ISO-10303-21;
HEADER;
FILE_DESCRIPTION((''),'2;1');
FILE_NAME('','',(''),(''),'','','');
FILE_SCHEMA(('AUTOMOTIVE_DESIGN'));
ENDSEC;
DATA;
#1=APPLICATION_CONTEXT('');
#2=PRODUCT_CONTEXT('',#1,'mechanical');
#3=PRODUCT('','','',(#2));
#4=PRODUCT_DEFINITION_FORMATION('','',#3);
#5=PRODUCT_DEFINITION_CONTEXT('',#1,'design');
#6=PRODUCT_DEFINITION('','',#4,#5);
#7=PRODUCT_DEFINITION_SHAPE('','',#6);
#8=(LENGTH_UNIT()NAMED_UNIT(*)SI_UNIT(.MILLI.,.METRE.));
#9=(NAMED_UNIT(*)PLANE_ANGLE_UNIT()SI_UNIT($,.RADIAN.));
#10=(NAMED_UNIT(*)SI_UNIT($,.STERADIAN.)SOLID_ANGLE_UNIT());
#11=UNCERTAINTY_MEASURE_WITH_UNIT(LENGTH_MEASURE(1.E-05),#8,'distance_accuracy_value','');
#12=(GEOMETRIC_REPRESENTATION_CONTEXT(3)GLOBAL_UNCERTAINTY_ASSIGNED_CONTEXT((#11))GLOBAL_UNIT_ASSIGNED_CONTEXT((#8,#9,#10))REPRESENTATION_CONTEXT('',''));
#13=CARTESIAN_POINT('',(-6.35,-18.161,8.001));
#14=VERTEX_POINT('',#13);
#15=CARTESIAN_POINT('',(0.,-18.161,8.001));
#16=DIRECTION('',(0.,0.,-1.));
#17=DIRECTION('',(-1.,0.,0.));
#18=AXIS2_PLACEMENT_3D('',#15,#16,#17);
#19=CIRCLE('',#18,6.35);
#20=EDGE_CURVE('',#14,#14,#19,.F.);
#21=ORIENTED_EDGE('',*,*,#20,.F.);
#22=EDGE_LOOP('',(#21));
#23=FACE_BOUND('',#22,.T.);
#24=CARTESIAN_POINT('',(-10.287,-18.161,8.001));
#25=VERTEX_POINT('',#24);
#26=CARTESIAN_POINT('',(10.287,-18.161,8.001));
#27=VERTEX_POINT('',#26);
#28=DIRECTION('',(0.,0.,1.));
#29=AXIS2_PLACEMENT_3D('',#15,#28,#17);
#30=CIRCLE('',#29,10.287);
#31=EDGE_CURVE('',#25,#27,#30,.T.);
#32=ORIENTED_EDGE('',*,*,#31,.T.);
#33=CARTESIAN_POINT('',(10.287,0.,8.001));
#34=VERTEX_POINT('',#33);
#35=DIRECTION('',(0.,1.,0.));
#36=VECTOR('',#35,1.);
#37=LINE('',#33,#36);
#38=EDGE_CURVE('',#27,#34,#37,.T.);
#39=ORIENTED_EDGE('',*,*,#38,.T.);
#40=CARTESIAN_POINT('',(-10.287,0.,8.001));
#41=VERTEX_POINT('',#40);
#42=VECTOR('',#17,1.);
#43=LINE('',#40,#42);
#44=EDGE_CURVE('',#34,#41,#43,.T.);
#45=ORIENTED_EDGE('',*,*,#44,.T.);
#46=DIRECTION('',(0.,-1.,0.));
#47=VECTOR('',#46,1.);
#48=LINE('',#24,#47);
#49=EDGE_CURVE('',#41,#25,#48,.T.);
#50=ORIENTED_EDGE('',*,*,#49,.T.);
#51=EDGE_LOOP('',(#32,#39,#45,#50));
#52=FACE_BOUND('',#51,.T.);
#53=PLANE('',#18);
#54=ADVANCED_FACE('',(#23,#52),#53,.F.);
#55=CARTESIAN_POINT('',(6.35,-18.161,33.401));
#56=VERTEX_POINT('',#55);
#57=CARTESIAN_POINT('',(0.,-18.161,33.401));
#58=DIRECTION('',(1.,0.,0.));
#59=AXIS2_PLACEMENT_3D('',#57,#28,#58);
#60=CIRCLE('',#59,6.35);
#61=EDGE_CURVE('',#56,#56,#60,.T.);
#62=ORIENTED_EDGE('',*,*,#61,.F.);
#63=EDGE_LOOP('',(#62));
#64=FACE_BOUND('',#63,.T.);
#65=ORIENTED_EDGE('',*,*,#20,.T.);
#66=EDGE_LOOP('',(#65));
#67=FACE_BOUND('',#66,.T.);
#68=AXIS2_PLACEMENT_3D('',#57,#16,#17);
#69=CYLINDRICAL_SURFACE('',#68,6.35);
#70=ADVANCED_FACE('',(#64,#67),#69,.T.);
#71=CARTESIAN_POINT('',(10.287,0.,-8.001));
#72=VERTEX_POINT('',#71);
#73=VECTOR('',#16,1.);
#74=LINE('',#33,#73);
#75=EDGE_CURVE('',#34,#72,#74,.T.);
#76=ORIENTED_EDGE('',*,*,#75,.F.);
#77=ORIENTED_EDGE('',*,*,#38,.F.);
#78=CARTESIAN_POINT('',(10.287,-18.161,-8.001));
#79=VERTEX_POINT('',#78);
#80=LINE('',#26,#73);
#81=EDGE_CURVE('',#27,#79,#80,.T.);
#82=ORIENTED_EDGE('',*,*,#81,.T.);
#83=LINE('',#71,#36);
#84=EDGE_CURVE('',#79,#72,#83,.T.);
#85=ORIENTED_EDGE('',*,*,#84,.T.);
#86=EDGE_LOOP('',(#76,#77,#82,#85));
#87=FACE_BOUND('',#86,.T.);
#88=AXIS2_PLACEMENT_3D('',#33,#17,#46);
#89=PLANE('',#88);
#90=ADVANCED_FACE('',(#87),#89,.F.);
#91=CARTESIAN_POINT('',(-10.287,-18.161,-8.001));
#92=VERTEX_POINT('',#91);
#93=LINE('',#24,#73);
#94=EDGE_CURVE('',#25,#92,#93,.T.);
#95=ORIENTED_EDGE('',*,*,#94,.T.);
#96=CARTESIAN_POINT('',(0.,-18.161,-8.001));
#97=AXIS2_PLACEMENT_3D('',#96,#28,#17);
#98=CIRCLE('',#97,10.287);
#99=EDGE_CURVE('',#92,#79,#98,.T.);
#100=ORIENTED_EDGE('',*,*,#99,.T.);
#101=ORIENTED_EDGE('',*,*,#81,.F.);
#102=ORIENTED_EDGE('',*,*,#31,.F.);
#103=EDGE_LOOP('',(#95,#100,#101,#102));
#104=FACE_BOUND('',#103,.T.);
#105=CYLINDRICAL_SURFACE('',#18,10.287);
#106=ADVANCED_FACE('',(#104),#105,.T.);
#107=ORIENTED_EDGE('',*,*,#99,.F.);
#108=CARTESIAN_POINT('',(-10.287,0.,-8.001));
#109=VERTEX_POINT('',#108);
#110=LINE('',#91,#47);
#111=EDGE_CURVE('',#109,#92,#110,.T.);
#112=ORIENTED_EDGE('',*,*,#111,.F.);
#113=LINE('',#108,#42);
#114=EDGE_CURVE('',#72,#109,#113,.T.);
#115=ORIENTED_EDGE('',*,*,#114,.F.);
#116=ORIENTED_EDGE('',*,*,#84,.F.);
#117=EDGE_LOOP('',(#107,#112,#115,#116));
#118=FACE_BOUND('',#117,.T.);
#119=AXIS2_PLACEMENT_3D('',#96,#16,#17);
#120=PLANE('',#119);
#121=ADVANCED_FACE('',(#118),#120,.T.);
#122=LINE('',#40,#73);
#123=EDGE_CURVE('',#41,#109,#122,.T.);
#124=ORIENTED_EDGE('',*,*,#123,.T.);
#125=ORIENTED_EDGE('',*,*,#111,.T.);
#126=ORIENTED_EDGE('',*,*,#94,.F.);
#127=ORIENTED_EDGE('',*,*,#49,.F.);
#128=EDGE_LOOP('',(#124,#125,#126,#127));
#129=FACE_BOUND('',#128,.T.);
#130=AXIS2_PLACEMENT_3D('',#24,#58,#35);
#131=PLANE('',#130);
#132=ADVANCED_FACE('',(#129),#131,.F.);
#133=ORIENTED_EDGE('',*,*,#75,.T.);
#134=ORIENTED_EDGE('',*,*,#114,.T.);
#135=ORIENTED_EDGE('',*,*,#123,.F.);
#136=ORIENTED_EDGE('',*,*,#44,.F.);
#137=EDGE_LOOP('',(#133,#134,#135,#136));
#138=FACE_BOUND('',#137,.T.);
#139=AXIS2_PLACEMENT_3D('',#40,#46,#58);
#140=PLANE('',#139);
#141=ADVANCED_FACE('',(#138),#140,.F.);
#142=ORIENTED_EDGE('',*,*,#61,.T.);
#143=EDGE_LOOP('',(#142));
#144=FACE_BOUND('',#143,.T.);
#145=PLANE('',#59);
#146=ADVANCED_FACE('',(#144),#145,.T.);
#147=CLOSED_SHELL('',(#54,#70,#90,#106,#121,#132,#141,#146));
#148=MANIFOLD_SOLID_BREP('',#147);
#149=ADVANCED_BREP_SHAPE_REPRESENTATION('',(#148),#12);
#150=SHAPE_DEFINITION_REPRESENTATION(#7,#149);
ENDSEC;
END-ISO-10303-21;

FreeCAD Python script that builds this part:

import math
import FreeCAD as App
import Part
import Sketcher
Q = App.Units.Quantity

doc = App.newDocument("Part")
body = doc.addObject("PartDesign::Body", "Body")

# Sketch on XY plane
sketch1 = body.newObject("Sketcher::SketchObject", "Sketch")
sketch1.AttachmentSupport = (doc.getObject("XY_Plane"), [""])
sketch1.MapMode = "FlatFace"
sketch1.addGeometry([
    Part.LineSegment(App.Vector(10, 0, 0), App.Vector(-10, 0, 0)),
    Part.LineSegment(App.Vector(-10, 0, 0), App.Vector(-10, -18, 0)),
    Part.ArcOfCircle(Part.Circle(App.Vector(0, -18, 0), App.Vector(0, 0, 1), 10), math.radians(180), math.radians(360)),
    Part.LineSegment(App.Vector(10, -18, 0), App.Vector(10, 0, 0)),
], False)
sketch1.addConstraint([
    Sketcher.Constraint("Coincident", 0, 2, 1, 1),
    Sketcher.Constraint("Tangent", 1, 2, 2, 1),
    Sketcher.Constraint("Tangent", 2, 2, 3, 1),
    Sketcher.Constraint("Coincident", 3, 2, 0, 1),
    Sketcher.Constraint("Horizontal", 0),
    Sketcher.Constraint("Vertical", 1),
    Sketcher.Constraint("Vertical", 3),
    Sketcher.Constraint("Symmetric", 0, 2, 3, 2, -1, 1),
    Sketcher.Constraint("Radius", 2, Q("0.405 in")),
    Sketcher.Constraint("DistanceY", 1, 2, 1, 1, Q("0.715 in")),
])
pad1 = body.newObject("PartDesign::Pad", "Pad")
pad1.Profile = sketch1
pad1.Length = Q("0.63 in")
pad1.Midplane = True

# Sketch on XY plane
sketch2 = body.newObject("Sketcher::SketchObject", "Sketch001")
sketch2.AttachmentSupport = (doc.getObject("XY_Plane"), [""])
sketch2.MapMode = "FlatFace"
sketch2.AttachmentOffset = App.Placement(App.Vector(0, 0, 0.315 * 25.4), App.Rotation())
sketch2.addGeometry(Part.Circle(App.Vector(0, -18, 0), App.Vector(0, 0, 1), 6), False)
sketch2.addConstraint([
    Sketcher.Constraint("PointOnObject", 0, 3, -2),
    Sketcher.Constraint("Diameter", 0, Q("0.5 in")),
    Sketcher.Constraint("DistanceY", 0, 3, -1, 1, Q("0.715 in")),
])
pad2 = body.newObject("PartDesign::Pad", "Pad001")
pad2.Profile = sketch2
pad2.Length = Q("1 in")

doc.recompute()
